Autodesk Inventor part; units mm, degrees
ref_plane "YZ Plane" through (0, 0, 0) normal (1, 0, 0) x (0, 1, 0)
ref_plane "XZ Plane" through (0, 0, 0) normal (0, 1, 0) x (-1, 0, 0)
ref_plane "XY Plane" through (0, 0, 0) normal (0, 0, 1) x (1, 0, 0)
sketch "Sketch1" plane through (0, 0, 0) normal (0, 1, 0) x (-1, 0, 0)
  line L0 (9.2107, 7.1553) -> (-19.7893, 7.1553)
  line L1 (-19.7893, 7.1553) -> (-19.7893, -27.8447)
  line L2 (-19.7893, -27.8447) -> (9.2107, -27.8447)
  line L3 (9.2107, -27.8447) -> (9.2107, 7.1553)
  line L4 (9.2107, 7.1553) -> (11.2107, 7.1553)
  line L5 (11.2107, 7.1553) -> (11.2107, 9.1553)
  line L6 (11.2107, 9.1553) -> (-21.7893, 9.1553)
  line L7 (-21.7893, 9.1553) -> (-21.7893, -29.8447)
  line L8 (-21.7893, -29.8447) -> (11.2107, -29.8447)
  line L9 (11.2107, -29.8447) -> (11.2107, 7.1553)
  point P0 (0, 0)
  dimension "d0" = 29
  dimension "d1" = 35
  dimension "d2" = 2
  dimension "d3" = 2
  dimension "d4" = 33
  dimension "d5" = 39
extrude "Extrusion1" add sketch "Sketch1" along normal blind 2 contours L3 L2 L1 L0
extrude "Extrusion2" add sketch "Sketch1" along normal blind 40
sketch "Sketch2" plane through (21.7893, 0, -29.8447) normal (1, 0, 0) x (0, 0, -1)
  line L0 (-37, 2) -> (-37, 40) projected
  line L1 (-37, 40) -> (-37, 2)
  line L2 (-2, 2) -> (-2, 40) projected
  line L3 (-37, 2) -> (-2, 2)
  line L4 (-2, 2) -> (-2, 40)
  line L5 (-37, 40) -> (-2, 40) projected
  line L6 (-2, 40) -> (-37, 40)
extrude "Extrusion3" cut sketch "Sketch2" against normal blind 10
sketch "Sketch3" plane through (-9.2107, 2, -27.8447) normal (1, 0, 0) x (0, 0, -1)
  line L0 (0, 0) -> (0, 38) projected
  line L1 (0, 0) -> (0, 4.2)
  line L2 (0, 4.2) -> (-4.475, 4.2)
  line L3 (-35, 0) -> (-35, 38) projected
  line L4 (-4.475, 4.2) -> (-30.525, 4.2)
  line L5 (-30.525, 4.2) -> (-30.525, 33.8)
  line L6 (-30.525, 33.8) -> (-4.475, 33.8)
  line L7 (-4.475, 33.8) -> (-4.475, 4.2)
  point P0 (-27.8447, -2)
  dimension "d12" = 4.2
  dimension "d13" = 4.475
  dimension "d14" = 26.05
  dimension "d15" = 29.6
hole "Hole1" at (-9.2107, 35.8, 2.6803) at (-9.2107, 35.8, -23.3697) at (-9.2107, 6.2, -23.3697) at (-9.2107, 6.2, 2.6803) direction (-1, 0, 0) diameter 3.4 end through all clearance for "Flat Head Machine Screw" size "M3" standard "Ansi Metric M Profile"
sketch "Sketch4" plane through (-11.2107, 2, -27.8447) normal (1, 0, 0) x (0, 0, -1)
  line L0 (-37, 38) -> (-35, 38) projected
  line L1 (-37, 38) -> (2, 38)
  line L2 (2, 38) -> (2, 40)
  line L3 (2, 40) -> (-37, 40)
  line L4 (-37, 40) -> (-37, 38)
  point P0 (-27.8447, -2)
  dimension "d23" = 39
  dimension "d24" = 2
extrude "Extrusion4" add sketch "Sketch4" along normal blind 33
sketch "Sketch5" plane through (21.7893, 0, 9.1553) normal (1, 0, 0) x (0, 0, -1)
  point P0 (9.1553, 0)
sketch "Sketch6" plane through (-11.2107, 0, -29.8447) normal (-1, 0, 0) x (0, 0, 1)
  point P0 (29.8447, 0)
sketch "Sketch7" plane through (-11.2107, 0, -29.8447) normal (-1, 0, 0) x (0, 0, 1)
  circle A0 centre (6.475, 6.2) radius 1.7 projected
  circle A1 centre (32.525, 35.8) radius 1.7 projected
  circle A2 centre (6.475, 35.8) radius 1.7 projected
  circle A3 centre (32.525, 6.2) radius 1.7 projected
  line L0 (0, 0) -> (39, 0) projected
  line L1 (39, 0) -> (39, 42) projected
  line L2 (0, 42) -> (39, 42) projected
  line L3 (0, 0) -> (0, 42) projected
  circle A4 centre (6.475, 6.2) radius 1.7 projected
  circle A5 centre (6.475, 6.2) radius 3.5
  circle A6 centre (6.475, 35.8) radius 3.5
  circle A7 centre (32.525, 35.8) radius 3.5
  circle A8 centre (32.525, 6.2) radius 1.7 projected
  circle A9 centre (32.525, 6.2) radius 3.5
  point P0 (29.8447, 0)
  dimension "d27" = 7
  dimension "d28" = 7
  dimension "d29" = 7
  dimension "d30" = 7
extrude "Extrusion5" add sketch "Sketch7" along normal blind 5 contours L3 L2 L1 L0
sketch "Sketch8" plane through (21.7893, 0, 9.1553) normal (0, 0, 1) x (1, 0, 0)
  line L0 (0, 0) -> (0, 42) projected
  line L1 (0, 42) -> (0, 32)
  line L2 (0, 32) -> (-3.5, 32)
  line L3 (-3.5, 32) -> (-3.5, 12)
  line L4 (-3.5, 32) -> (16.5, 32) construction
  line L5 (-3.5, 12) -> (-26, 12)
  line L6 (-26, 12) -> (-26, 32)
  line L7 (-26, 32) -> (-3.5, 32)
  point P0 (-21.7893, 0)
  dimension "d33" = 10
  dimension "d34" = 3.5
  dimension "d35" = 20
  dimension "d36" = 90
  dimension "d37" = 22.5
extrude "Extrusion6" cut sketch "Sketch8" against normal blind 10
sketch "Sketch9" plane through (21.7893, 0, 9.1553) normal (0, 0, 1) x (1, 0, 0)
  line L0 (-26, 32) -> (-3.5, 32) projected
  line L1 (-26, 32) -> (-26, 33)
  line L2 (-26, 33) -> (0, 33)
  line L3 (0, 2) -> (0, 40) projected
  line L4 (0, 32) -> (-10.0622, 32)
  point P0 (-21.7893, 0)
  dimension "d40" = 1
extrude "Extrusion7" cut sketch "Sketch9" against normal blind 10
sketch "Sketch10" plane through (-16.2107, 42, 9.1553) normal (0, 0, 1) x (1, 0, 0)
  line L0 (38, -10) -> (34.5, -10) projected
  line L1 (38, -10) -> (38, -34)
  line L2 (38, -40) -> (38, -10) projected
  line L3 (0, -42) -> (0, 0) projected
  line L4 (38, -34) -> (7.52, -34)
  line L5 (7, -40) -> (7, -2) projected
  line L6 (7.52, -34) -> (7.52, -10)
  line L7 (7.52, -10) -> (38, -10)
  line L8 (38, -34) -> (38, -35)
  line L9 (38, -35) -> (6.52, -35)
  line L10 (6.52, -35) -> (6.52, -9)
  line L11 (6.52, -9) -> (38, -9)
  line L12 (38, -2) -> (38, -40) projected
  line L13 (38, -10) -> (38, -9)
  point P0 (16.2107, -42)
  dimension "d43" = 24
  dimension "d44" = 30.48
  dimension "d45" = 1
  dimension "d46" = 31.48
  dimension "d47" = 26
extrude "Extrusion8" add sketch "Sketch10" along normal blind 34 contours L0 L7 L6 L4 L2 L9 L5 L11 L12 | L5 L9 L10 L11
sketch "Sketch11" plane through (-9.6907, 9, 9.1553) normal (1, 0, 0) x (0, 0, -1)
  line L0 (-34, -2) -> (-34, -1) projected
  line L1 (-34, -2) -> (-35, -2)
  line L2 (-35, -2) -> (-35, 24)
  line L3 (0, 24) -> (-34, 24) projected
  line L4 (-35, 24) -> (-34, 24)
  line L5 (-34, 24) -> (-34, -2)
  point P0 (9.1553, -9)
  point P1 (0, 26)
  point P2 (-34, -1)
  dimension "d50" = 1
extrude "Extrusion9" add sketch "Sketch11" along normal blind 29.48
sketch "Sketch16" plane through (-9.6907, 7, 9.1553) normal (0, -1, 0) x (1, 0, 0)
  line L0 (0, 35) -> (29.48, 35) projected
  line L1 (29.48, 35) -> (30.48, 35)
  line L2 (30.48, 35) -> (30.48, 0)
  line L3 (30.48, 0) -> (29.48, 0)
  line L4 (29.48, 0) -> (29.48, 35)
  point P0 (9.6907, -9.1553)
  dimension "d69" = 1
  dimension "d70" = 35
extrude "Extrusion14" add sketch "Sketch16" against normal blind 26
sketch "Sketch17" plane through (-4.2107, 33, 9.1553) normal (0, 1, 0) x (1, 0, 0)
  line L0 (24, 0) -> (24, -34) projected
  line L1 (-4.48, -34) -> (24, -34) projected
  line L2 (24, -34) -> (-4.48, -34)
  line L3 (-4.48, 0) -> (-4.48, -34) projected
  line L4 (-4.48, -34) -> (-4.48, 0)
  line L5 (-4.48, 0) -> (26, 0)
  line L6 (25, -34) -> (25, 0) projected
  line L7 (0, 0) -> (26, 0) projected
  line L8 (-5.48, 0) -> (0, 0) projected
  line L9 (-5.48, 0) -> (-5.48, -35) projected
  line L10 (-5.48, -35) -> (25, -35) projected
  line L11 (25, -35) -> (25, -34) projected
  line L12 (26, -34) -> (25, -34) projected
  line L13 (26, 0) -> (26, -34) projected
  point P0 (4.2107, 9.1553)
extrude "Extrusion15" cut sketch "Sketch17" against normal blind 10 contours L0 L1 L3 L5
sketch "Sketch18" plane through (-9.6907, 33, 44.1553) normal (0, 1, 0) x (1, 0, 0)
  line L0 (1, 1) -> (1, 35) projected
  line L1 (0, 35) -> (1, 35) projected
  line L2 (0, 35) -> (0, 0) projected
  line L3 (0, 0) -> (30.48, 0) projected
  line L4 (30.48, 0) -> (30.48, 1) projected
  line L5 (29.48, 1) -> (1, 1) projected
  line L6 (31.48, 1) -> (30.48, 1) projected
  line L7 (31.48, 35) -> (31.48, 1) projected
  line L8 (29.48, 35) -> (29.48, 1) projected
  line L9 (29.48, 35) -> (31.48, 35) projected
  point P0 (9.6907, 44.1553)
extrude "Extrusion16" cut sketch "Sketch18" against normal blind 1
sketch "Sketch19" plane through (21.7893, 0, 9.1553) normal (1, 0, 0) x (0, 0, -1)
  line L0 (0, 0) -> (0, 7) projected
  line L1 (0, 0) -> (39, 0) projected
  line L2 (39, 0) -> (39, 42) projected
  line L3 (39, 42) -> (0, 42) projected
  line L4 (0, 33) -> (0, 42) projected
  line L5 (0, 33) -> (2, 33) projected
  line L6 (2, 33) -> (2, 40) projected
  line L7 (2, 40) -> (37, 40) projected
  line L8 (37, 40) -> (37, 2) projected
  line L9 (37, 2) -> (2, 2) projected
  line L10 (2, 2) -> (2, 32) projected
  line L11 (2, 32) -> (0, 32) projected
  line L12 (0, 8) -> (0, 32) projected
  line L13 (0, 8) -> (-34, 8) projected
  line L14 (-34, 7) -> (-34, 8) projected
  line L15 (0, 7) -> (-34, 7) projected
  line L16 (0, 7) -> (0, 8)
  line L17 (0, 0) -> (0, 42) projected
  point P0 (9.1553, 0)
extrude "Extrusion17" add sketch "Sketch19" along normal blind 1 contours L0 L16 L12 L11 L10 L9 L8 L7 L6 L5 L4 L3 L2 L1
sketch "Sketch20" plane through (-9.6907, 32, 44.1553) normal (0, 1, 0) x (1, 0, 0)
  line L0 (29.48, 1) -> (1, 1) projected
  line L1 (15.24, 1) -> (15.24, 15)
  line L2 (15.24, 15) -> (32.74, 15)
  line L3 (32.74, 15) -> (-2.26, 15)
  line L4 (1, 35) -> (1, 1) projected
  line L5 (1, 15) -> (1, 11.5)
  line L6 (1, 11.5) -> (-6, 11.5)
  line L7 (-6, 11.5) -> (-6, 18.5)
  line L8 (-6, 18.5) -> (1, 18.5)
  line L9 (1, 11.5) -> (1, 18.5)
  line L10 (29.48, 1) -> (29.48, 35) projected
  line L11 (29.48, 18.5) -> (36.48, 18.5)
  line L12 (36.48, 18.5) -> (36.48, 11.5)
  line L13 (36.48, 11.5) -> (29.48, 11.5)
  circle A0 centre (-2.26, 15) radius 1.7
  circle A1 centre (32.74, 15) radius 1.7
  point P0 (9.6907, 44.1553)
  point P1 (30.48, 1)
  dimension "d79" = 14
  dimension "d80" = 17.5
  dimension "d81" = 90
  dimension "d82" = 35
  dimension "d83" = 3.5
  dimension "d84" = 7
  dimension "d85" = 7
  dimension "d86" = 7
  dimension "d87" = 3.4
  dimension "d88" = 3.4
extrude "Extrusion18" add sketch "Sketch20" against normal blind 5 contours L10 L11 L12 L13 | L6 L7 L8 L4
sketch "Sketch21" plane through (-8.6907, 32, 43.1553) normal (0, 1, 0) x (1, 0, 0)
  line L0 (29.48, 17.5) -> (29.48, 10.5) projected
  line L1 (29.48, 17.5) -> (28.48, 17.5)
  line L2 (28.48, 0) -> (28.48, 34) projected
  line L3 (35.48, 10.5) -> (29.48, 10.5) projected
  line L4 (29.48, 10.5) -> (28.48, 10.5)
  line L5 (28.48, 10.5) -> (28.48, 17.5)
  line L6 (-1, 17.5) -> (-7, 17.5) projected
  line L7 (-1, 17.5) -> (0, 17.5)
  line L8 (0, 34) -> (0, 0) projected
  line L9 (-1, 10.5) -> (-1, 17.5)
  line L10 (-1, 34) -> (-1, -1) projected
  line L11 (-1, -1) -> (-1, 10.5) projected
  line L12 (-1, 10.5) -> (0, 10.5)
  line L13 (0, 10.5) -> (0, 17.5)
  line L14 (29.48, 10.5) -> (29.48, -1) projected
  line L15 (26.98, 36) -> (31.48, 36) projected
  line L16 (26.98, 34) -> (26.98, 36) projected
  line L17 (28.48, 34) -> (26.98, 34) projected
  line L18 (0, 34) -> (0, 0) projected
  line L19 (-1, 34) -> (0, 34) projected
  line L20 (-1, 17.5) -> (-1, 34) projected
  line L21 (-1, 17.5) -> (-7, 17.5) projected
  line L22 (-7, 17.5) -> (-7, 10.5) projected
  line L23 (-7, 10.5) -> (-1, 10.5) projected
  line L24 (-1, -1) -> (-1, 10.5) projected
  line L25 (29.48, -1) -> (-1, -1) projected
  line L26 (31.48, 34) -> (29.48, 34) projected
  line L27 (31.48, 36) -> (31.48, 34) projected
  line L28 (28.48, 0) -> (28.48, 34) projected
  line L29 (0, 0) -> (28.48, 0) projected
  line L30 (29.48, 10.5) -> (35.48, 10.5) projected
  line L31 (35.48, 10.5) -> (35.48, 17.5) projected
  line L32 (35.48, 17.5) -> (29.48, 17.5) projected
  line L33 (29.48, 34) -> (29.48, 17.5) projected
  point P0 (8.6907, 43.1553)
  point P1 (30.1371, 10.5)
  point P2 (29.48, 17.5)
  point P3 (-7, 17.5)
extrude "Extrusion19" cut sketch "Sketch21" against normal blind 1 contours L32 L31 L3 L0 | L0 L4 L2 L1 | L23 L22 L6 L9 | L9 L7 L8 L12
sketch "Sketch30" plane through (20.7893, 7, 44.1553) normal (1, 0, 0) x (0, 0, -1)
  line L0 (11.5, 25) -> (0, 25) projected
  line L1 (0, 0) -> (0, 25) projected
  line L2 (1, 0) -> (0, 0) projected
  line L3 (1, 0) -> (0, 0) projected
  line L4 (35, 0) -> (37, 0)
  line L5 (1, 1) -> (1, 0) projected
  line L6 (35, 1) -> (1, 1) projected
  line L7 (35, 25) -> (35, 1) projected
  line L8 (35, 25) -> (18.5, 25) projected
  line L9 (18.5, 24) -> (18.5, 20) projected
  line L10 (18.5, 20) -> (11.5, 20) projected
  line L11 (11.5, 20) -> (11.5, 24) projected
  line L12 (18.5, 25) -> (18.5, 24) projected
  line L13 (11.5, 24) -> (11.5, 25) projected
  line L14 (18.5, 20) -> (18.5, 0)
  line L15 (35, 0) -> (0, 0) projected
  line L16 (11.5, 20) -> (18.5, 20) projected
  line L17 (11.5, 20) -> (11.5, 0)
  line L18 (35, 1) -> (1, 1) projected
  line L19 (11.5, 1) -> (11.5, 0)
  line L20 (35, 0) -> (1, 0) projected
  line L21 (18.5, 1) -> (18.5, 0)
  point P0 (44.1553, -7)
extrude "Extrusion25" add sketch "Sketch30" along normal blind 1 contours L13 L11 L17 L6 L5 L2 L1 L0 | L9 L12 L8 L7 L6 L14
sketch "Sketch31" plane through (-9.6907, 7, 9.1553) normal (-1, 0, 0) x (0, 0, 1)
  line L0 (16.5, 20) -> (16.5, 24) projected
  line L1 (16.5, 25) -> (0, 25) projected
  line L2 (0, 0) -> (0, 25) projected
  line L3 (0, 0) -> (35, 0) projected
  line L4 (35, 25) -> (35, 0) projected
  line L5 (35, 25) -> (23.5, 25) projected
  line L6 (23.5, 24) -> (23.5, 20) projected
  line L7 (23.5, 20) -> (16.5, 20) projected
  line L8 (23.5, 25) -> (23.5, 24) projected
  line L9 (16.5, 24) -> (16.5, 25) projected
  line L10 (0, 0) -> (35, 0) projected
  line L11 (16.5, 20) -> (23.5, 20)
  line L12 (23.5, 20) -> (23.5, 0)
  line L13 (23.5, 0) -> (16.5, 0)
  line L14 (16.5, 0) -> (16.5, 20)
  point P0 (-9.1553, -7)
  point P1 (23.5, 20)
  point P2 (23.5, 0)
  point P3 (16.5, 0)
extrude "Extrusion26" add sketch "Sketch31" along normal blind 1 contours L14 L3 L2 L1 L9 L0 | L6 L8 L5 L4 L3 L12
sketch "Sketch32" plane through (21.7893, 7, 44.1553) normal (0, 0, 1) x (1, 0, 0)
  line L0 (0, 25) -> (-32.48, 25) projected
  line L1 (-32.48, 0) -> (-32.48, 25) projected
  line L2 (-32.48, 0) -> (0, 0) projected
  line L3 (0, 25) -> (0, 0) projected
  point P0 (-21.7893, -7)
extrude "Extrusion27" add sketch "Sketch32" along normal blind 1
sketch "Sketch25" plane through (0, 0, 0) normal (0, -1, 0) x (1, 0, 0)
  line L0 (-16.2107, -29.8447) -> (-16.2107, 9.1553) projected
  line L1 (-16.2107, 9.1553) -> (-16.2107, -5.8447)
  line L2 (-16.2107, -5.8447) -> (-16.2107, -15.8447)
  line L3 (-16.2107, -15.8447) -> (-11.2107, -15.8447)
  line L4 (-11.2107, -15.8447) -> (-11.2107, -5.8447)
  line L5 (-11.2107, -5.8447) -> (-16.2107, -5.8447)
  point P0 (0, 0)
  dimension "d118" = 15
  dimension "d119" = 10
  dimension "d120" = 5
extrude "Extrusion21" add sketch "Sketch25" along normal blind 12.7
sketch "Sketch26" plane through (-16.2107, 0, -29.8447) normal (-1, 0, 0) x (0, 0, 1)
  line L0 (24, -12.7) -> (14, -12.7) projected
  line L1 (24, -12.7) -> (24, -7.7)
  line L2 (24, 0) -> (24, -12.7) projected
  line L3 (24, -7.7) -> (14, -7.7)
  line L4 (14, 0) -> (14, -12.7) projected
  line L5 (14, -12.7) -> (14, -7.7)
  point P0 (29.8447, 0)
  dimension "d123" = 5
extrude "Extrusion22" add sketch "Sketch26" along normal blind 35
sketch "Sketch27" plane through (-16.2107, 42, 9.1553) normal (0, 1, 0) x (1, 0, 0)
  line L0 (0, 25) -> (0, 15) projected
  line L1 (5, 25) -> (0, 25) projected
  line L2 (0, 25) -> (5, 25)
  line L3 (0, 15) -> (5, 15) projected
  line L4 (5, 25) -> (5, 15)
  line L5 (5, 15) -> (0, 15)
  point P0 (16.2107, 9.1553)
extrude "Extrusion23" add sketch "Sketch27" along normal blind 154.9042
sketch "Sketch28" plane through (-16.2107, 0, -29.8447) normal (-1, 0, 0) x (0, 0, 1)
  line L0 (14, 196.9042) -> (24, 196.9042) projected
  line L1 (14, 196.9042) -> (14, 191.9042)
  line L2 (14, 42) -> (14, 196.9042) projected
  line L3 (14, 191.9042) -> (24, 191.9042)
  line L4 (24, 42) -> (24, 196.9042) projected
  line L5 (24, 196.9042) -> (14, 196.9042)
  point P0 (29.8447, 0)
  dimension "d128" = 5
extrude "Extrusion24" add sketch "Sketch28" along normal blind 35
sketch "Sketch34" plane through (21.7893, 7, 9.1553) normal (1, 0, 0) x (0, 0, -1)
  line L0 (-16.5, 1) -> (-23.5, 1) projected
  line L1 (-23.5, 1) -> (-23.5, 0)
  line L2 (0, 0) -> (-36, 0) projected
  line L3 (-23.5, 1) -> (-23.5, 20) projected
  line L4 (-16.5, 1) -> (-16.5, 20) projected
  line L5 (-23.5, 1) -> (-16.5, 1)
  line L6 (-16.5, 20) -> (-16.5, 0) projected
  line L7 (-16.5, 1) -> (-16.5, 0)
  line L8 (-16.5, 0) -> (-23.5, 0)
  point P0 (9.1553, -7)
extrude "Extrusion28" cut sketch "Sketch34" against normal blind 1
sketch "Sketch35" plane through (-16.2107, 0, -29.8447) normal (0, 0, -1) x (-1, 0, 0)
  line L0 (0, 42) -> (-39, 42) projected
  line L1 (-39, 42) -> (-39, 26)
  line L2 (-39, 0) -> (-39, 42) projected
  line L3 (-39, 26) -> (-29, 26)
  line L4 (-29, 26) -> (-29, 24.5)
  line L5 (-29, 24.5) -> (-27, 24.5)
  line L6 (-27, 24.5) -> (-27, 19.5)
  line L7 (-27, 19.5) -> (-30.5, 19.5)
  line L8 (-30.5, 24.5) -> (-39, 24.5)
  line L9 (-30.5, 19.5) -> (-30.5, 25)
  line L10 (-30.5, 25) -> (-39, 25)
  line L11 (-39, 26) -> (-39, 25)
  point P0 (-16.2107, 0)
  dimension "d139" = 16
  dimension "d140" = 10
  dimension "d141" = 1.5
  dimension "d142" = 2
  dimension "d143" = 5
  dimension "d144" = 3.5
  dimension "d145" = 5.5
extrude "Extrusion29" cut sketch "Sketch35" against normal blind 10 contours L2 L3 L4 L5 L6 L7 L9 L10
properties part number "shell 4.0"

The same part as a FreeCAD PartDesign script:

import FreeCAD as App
import Part
import Sketcher


def add_polygon(sketch, points):
    """Adds a closed chain of lines whose ends are joined by coincident constraints."""
    first, n = sketch.GeometryCount, len(points)
    for a, b in zip(points, points[1:] + points[:1]):
        sketch.addGeometry(Part.LineSegment(App.Vector(*a, 0), App.Vector(*b, 0)), False)
    for i in range(n):
        sketch.addConstraint(Sketcher.Constraint("Coincident", first + i, 2, first + (i + 1) % n, 1))

doc = App.newDocument("Part")
body = doc.addObject("PartDesign::Body", "Body")

# Sketch on XZ plane
sketch1 = doc.addObject("Sketcher::SketchObject", "Sketch")
body.addObject(sketch1)
sketch1.AttachmentSupport = (doc.XZ_Plane, [""])
sketch1.MapMode = "FlatFace"
add_polygon(sketch1, [(-9, -28), (-9, 7), (20, 7), (20, -28)])  # lines 0-3
sketch1.addConstraint(Sketcher.Constraint("Vertical", 0))
sketch1.addConstraint(Sketcher.Constraint("Horizontal", 1))
sketch1.addConstraint(Sketcher.Constraint("Vertical", 2))
sketch1.addConstraint(Sketcher.Constraint("Horizontal", 3))
sketch1.addConstraint(Sketcher.Constraint("DistanceX", 1, 1, 1, 2, 29.0))
sketch1.addConstraint(Sketcher.Constraint("DistanceY", 0, 1, 0, 2, 35.0))
sketch1.addConstraint(Sketcher.Constraint("DistanceX", 0, 2, -1, 1, 9.2107))
sketch1.addConstraint(Sketcher.Constraint("DistanceY", -1, 1, 0, 2, 7.1553))
pad1 = doc.addObject("PartDesign::Pad", "Pad")
body.addObject(pad1)
pad1.Profile = sketch1
pad1.Length = 2
pad1.Reversed = True

# Sketch on XZ plane
sketch2 = doc.addObject("Sketcher::SketchObject", "Sketch001")
body.addObject(sketch2)
sketch2.AttachmentSupport = (doc.XZ_Plane, [""])
sketch2.MapMode = "FlatFace"
add_polygon(sketch2, [(-11.2, -29.8), (-11.2, 7.2), (-11.2, 9.2), (21.8, 9.2), (21.8, -29.8)])  # lines 0-4
add_polygon(sketch2, [(19.8, 7.2), (-9.2, 7.2), (-9.2, -27.8), (19.8, -27.8)])  # lines 5-8
sketch2.addConstraint(Sketcher.Constraint("Vertical", 0))
sketch2.addConstraint(Sketcher.Constraint("Vertical", 1))
sketch2.addConstraint(Sketcher.Constraint("Horizontal", 2))
sketch2.addConstraint(Sketcher.Constraint("Vertical", 3))
sketch2.addConstraint(Sketcher.Constraint("Horizontal", 4))
sketch2.addConstraint(Sketcher.Constraint("Horizontal", 5))
sketch2.addConstraint(Sketcher.Constraint("Vertical", 6))
sketch2.addConstraint(Sketcher.Constraint("Horizontal", 7))
sketch2.addConstraint(Sketcher.Constraint("Vertical", 8))
sketch2.addConstraint(Sketcher.Constraint("Horizontal", 0, 2, 5, 2))
sketch2.addConstraint(Sketcher.Constraint("DistanceX", 2, 1, 2, 2, 33.0))
sketch2.addConstraint(Sketcher.Constraint("DistanceX", 5, 2, 5, 1, 29.0))
sketch2.addConstraint(Sketcher.Constraint("DistanceY", 1, 1, 1, 2, 2.0))
sketch2.addConstraint(Sketcher.Constraint("DistanceY", 3, 2, 3, 1, 39.0))
sketch2.addConstraint(Sketcher.Constraint("DistanceY", 6, 2, 6, 1, 35.0))
sketch2.addConstraint(Sketcher.Constraint("DistanceX", 0, 2, 5, 2, 2.0))
sketch2.addConstraint(Sketcher.Constraint("DistanceX", 0, 2, -1, 1, 11.2107))
sketch2.addConstraint(Sketcher.Constraint("DistanceY", -1, 1, 0, 2, 7.1553))
pad2 = doc.addObject("PartDesign::Pad", "Pad001")
body.addObject(pad2)
pad2.Profile = sketch2
pad2.Length = 40
pad2.Reversed = True

# Sketch on YZ plane
sketch3 = doc.addObject("Sketcher::SketchObject", "Sketch002")
body.addObject(sketch3)
sketch3.AttachmentSupport = (doc.YZ_Plane, [""])
sketch3.MapMode = "FlatFace"
sketch3.AttachmentOffset = App.Placement(App.Vector(0, 0, 21.7893), App.Rotation())
add_polygon(sketch3, [(40, 7), (2, 7), (2, -28), (40, -28)])  # lines 0-3
sketch3.addConstraint(Sketcher.Constraint("Horizontal", 0))
sketch3.addConstraint(Sketcher.Constraint("Vertical", 1))
sketch3.addConstraint(Sketcher.Constraint("Horizontal", 2))
sketch3.addConstraint(Sketcher.Constraint("Vertical", 3))
sketch3.addConstraint(Sketcher.Constraint("DistanceX", 0, 2, 0, 1, 38.0))
sketch3.addConstraint(Sketcher.Constraint("DistanceY", 1, 2, 1, 1, 35.0))
sketch3.addConstraint(Sketcher.Constraint("DistanceX", -1, 1, 0, 2, 2.0))
sketch3.addConstraint(Sketcher.Constraint("DistanceY", -1, 1, 0, 2, 7.1553))
pocket1 = doc.addObject("PartDesign::Pocket", "Pocket")
body.addObject(pocket1)
pocket1.Profile = sketch3
pocket1.Length = 10

# Sketch on YZ plane
sketch4 = doc.addObject("Sketcher::SketchObject", "Sketch003")
body.addObject(sketch4)
sketch4.AttachmentSupport = (doc.YZ_Plane, [""])
sketch4.MapMode = "FlatFace"
sketch4.AttachmentOffset = App.Placement(App.Vector(0, 0, -9.2107), App.Rotation())
sketch4.addGeometry(Part.Circle(App.Vector(35.8, 2.7, 0), App.Vector(0, 0, 1), 1.7), False)
sketch4.addGeometry(Part.Circle(App.Vector(35.8, -23.4, 0), App.Vector(0, 0, 1), 1.7), False)
sketch4.addGeometry(Part.Circle(App.Vector(6.2, -23.4, 0), App.Vector(0, 0, 1), 1.7), False)
sketch4.addGeometry(Part.Circle(App.Vector(6.2, 2.7, 0), App.Vector(0, 0, 1), 1.7), False)
sketch4.addConstraint(Sketcher.Constraint("Equal", 0, 1))
sketch4.addConstraint(Sketcher.Constraint("Equal", 1, 2))
sketch4.addConstraint(Sketcher.Constraint("Equal", 2, 3))
sketch4.addConstraint(Sketcher.Constraint("Horizontal", 1, 3, 2, 3))
sketch4.addConstraint(Sketcher.Constraint("Horizontal", 0, 3, 3, 3))
sketch4.addConstraint(Sketcher.Constraint("Vertical", 0, 3, 1, 3))
sketch4.addConstraint(Sketcher.Constraint("Vertical", 2, 3, 3, 3))
sketch4.addConstraint(Sketcher.Constraint("Diameter", 0, 3.4))
sketch4.addConstraint(Sketcher.Constraint("DistanceX", -1, 1, 0, 3, 35.8))
sketch4.addConstraint(Sketcher.Constraint("DistanceX", -1, 1, 2, 3, 6.2))
sketch4.addConstraint(Sketcher.Constraint("DistanceY", 1, 3, 0, 3, 26.05))
sketch4.addConstraint(Sketcher.Constraint("DistanceY", -1, 1, 0, 3, 2.6803))
doc.recompute()
hole = doc.addObject("PartDesign::Hole", "Hole")
body.addObject(hole)
hole.Profile = sketch4
hole.ThreadType = "None"
hole.Diameter = 3.4
hole.DepthType = "ThroughAll"

# Sketch on YZ plane
sketch5 = doc.addObject("Sketcher::SketchObject", "Sketch004")
body.addObject(sketch5)
sketch5.AttachmentSupport = (doc.YZ_Plane, [""])
sketch5.MapMode = "FlatFace"
sketch5.AttachmentOffset = App.Placement(App.Vector(0, 0, -11.2107), App.Rotation())
add_polygon(sketch5, [(42, 9.2), (40, 9.2), (40, -29.8), (42, -29.8)])  # lines 0-3
sketch5.addConstraint(Sketcher.Constraint("Horizontal", 0))
sketch5.addConstraint(Sketcher.Constraint("Vertical", 1))
sketch5.addConstraint(Sketcher.Constraint("Horizontal", 2))
sketch5.addConstraint(Sketcher.Constraint("Vertical", 3))
sketch5.addConstraint(Sketcher.Constraint("DistanceX", 0, 2, 0, 1, 2.0))
sketch5.addConstraint(Sketcher.Constraint("DistanceY", 1, 2, 1, 1, 39.0))
sketch5.addConstraint(Sketcher.Constraint("DistanceX", -1, 1, 0, 2, 40.0))
sketch5.addConstraint(Sketcher.Constraint("DistanceY", -1, 1, 0, 2, 9.1553))
pad3 = doc.addObject("PartDesign::Pad", "Pad002")
body.addObject(pad3)
pad3.Profile = sketch5
pad3.Length = 33

# Sketch on YZ plane
sketch6 = doc.addObject("Sketcher::SketchObject", "Sketch005")
body.addObject(sketch6)
sketch6.AttachmentSupport = (doc.YZ_Plane, [""])
sketch6.MapMode = "FlatFace"
sketch6.AttachmentOffset = App.Placement(App.Vector(0, 0, -11.2107), App.Rotation())
add_polygon(sketch6, [(42, -29.8), (0, -29.8), (0, 9.2), (42, 9.2)])  # lines 0-3
sketch6.addGeometry(Part.Circle(App.Vector(6.2, -23.4, 0), App.Vector(0, 0, 1), 3.5), False)  # 4
sketch6.addGeometry(Part.Circle(App.Vector(6.2, 2.7, 0), App.Vector(0, 0, 1), 3.5), False)  # 5
sketch6.addGeometry(Part.Circle(App.Vector(35.8, -23.4, 0), App.Vector(0, 0, 1), 3.5), False)  # 6
sketch6.addGeometry(Part.Circle(App.Vector(35.8, 2.7, 0), App.Vector(0, 0, 1), 3.5), False)  # 7
sketch6.addConstraint(Sketcher.Constraint("Horizontal", 0))
sketch6.addConstraint(Sketcher.Constraint("Vertical", 1))
sketch6.addConstraint(Sketcher.Constraint("Horizontal", 2))
sketch6.addConstraint(Sketcher.Constraint("Vertical", 3))
sketch6.addConstraint(Sketcher.Constraint("Equal", 4, 5))
sketch6.addConstraint(Sketcher.Constraint("Equal", 5, 6))
sketch6.addConstraint(Sketcher.Constraint("Equal", 6, 7))
sketch6.addConstraint(Sketcher.Constraint("PointOnObject", 0, 2, -2))
sketch6.addConstraint(Sketcher.Constraint("Horizontal", 4, 3, 6, 3))
sketch6.addConstraint(Sketcher.Constraint("Horizontal", 5, 3, 7, 3))
sketch6.addConstraint(Sketcher.Constraint("Vertical", 4, 3, 5, 3))
sketch6.addConstraint(Sketcher.Constraint("Vertical", 6, 3, 7, 3))
sketch6.addConstraint(Sketcher.Constraint("Diameter", 4, 7.0))
sketch6.addConstraint(Sketcher.Constraint("DistanceX", 0, 2, 0, 1, 42.0))
sketch6.addConstraint(Sketcher.Constraint("DistanceY", 1, 1, 1, 2, 39.0))
sketch6.addConstraint(Sketcher.Constraint("DistanceX", -1, 1, 4, 3, 6.2))
sketch6.addConstraint(Sketcher.Constraint("DistanceX", -1, 1, 6, 3, 35.8))
sketch6.addConstraint(Sketcher.Constraint("DistanceY", 4, 3, 5, 3, 26.05))
sketch6.addConstraint(Sketcher.Constraint("DistanceY", 0, 2, 4, 3, 6.475))
sketch6.addConstraint(Sketcher.Constraint("DistanceY", 4, 3, -1, 1, 23.3697))
pad4 = doc.addObject("PartDesign::Pad", "Pad003")
body.addObject(pad4)
pad4.Profile = sketch6
pad4.Length = 5
pad4.Reversed = True

# Sketch on XY plane
sketch7 = doc.addObject("Sketcher::SketchObject", "Sketch006")
body.addObject(sketch7)
sketch7.AttachmentSupport = (doc.XY_Plane, [""])
sketch7.MapMode = "FlatFace"
sketch7.AttachmentOffset = App.Placement(App.Vector(0, 0, 9.1553), App.Rotation())
add_polygon(sketch7, [(18, 12), (18, 32), (-4, 32), (-4, 12)])  # lines 0-3
sketch7.addConstraint(Sketcher.Constraint("Vertical", 0))
sketch7.addConstraint(Sketcher.Constraint("Horizontal", 1))
sketch7.addConstraint(Sketcher.Constraint("Vertical", 2))
sketch7.addConstraint(Sketcher.Constraint("Horizontal", 3))
sketch7.addConstraint(Sketcher.Constraint("DistanceY", 0, 1, 0, 2, 20.0))
sketch7.addConstraint(Sketcher.Constraint("DistanceX", 1, 2, 1, 1, 22.5))
sketch7.addConstraint(Sketcher.Constraint("DistanceY", -1, 1, 0, 2, 32.0))
sketch7.addConstraint(Sketcher.Constraint("DistanceX", -1, 1, 0, 2, 18.2893))
pocket2 = doc.addObject("PartDesign::Pocket", "Pocket001")
body.addObject(pocket2)
pocket2.Profile = sketch7
pocket2.Length = 10

# Sketch on XY plane
sketch8 = doc.addObject("Sketcher::SketchObject", "Sketch007")
body.addObject(sketch8)
sketch8.AttachmentSupport = (doc.XY_Plane, [""])
sketch8.MapMode = "FlatFace"
sketch8.AttachmentOffset = App.Placement(App.Vector(0, 0, 9.1553), App.Rotation())
add_polygon(sketch8, [(-4.2, 33), (-4.2, 32), (21.8, 32), (21.8, 33)])  # lines 0-3
sketch8.addConstraint(Sketcher.Constraint("Vertical", 0))
sketch8.addConstraint(Sketcher.Constraint("Horizontal", 1))
sketch8.addConstraint(Sketcher.Constraint("Vertical", 2))
sketch8.addConstraint(Sketcher.Constraint("Horizontal", 3))
sketch8.addConstraint(Sketcher.Constraint("DistanceY", 0, 2, 0, 1, 1.0))
sketch8.addConstraint(Sketcher.Constraint("DistanceX", 1, 1, 1, 2, 26.0))
sketch8.addConstraint(Sketcher.Constraint("DistanceY", -1, 1, 0, 2, 32.0))
sketch8.addConstraint(Sketcher.Constraint("DistanceX", 0, 2, -1, 1, 4.2107))
pocket3 = doc.addObject("PartDesign::Pocket", "Pocket002")
body.addObject(pocket3)
pocket3.Profile = sketch8
pocket3.Length = 10

# Sketch on XY plane
sketch9 = doc.addObject("Sketcher::SketchObject", "Sketch008")
body.addObject(sketch9)
sketch9.AttachmentSupport = (doc.XY_Plane, [""])
sketch9.MapMode = "FlatFace"
sketch9.AttachmentOffset = App.Placement(App.Vector(0, 0, 9.1553), App.Rotation())
add_polygon(sketch9, [(21.8, 32), (21.8, 33), (-9.7, 33), (-9.7, 7), (21.8, 7), (21.8, 8), (-8.7, 8), (-8.7, 32)])  # lines 0-7
sketch9.addConstraint(Sketcher.Constraint("Vertical", 0))
sketch9.addConstraint(Sketcher.Constraint("Horizontal", 1))
sketch9.addConstraint(Sketcher.Constraint("Vertical", 2))
sketch9.addConstraint(Sketcher.Constraint("Horizontal", 3))
sketch9.addConstraint(Sketcher.Constraint("Vertical", 4))
sketch9.addConstraint(Sketcher.Constraint("Horizontal", 5))
sketch9.addConstraint(Sketcher.Constraint("Vertical", 6))
sketch9.addConstraint(Sketcher.Constraint("Horizontal", 7))
sketch9.addConstraint(Sketcher.Constraint("Vertical", 0, 2, 3, 2))
sketch9.addConstraint(Sketcher.Constraint("Equal", 0, 4))
sketch9.addConstraint(Sketcher.Constraint("DistanceY", 0, 1, 0, 2, 1.0))
sketch9.addConstraint(Sketcher.Constraint("DistanceY", 2, 2, 2, 1, 26.0))
sketch9.addConstraint(Sketcher.Constraint("DistanceX", 2, 2, 5, 2, 1.0))
sketch9.addConstraint(Sketcher.Constraint("DistanceX", 1, 2, 1, 1, 31.48))
sketch9.addConstraint(Sketcher.Constraint("DistanceY", -1, 1, 0, 2, 33.0))
sketch9.addConstraint(Sketcher.Constraint("DistanceX", -1, 1, 0, 2, 21.7893))
pad5 = doc.addObject("PartDesign::Pad", "Pad004")
body.addObject(pad5)
pad5.Profile = sketch9
pad5.Length = 34

# Sketch on YZ plane
sketch10 = doc.addObject("Sketcher::SketchObject", "Sketch009")
body.addObject(sketch10)
sketch10.AttachmentSupport = (doc.YZ_Plane, [""])
sketch10.MapMode = "FlatFace"
sketch10.AttachmentOffset = App.Placement(App.Vector(0, 0, -9.6907), App.Rotation())
add_polygon(sketch10, [(7, 44.2), (7, 43.2), (33, 43.2), (33, 44.2)])  # lines 0-3
sketch10.addConstraint(Sketcher.Constraint("Vertical", 0))
sketch10.addConstraint(Sketcher.Constraint("Horizontal", 1))
sketch10.addConstraint(Sketcher.Constraint("Vertical", 2))
sketch10.addConstraint(Sketcher.Constraint("Horizontal", 3))
sketch10.addConstraint(Sketcher.Constraint("DistanceY", 0, 2, 0, 1, 1.0))
sketch10.addConstraint(Sketcher.Constraint("DistanceX", 1, 1, 1, 2, 26.0))
sketch10.addConstraint(Sketcher.Constraint("DistanceX", -1, 1, 0, 2, 7.0))
sketch10.addConstraint(Sketcher.Constraint("DistanceY", -1, 1, 0, 2, 43.1553))
pad6 = doc.addObject("PartDesign::Pad", "Pad005")
body.addObject(pad6)
pad6.Profile = sketch10
pad6.Length = 29.48

# Sketch on XZ plane
sketch11 = doc.addObject("Sketcher::SketchObject", "Sketch010")
body.addObject(sketch11)
sketch11.AttachmentSupport = (doc.XZ_Plane, [""])
sketch11.MapMode = "FlatFace"
sketch11.AttachmentOffset = App.Placement(App.Vector(0, 0, -7), App.Rotation())
add_polygon(sketch11, [(20.8, 44.2), (19.8, 44.2), (19.8, 9.2), (20.8, 9.2)])  # lines 0-3
sketch11.addConstraint(Sketcher.Constraint("Horizontal", 0))
sketch11.addConstraint(Sketcher.Constraint("Vertical", 1))
sketch11.addConstraint(Sketcher.Constraint("Horizontal", 2))
sketch11.addConstraint(Sketcher.Constraint("Vertical", 3))
sketch11.addConstraint(Sketcher.Constraint("DistanceX", 0, 2, 0, 1, 1.0))
sketch11.addConstraint(Sketcher.Constraint("DistanceY", 1, 2, 1, 1, 35.0))
sketch11.addConstraint(Sketcher.Constraint("DistanceX", -1, 1, 0, 2, 19.7893))
sketch11.addConstraint(Sketcher.Constraint("DistanceY", -1, 1, 0, 2, 44.1553))
pad7 = doc.addObject("PartDesign::Pad", "Pad006")
body.addObject(pad7)
pad7.Profile = sketch11
pad7.Length = 26
pad7.Reversed = True

# Sketch on XZ plane
sketch12 = doc.addObject("Sketcher::SketchObject", "Sketch011")
body.addObject(sketch12)
sketch12.AttachmentSupport = (doc.XZ_Plane, [""])
sketch12.MapMode = "FlatFace"
sketch12.AttachmentOffset = App.Placement(App.Vector(0, 0, -33), App.Rotation())
add_polygon(sketch12, [(20, 43), (20, 9), (-9, 9), (-9, 43)])  # lines 0-3
sketch12.addConstraint(Sketcher.Constraint("Vertical", 0))
sketch12.addConstraint(Sketcher.Constraint("Horizontal", 1))
sketch12.addConstraint(Sketcher.Constraint("Vertical", 2))
sketch12.addConstraint(Sketcher.Constraint("Horizontal", 3))
sketch12.addConstraint(Sketcher.Constraint("DistanceY", 0, 2, 0, 1, 34.0))
sketch12.addConstraint(Sketcher.Constraint("DistanceX", 1, 2, 1, 1, 28.48))
sketch12.addConstraint(Sketcher.Constraint("DistanceX", -1, 1, 0, 2, 19.7893))
sketch12.addConstraint(Sketcher.Constraint("DistanceY", -1, 1, 0, 2, 9.1553))
pocket4 = doc.addObject("PartDesign::Pocket", "Pocket003")
body.addObject(pocket4)
pocket4.Profile = sketch12
pocket4.Length = 10
pocket4.Reversed = True

# Sketch on XZ plane
sketch13 = doc.addObject("Sketcher::SketchObject", "Sketch012")
body.addObject(sketch13)
sketch13.AttachmentSupport = (doc.XZ_Plane, [""])
sketch13.MapMode = "FlatFace"
sketch13.AttachmentOffset = App.Placement(App.Vector(0, 0, -33), App.Rotation())
add_polygon(sketch13, [(19.8, 43.2), (-8.7, 43.2), (-8.7, 9.2), (-9.7, 9.2), (-9.7, 44.2), (20.8, 44.2), (20.8, 43.2), (21.8, 43.2), (21.8, 9.2), (19.8, 9.2)])  # lines 0-9
sketch13.addConstraint(Sketcher.Constraint("Horizontal", 0))
sketch13.addConstraint(Sketcher.Constraint("Vertical", 1))
sketch13.addConstraint(Sketcher.Constraint("Horizontal", 2))
sketch13.addConstraint(Sketcher.Constraint("Vertical", 3))
sketch13.addConstraint(Sketcher.Constraint("Horizontal", 4))
sketch13.addConstraint(Sketcher.Constraint("Vertical", 5))
sketch13.addConstraint(Sketcher.Constraint("Horizontal", 6))
sketch13.addConstraint(Sketcher.Constraint("Vertical", 7))
sketch13.addConstraint(Sketcher.Constraint("Horizontal", 8))
sketch13.addConstraint(Sketcher.Constraint("Vertical", 9))
sketch13.addConstraint(Sketcher.Constraint("Horizontal", 0, 2, 5, 2))
sketch13.addConstraint(Sketcher.Constraint("Horizontal", 2, 2, 7, 2))
sketch13.addConstraint(Sketcher.Constraint("Equal", 2, 6))
sketch13.addConstraint(Sketcher.Constraint("Equal", 6, 5))
sketch13.addConstraint(Sketcher.Constraint("DistanceX", 2, 2, 2, 1, 1.0))
sketch13.addConstraint(Sketcher.Constraint("DistanceX", 8, 2, 8, 1, 2.0))
sketch13.addConstraint(Sketcher.Constraint("DistanceY", 1, 2, 1, 1, 34.0))
sketch13.addConstraint(Sketcher.Constraint("DistanceX", 0, 2, 0, 1, 28.48))
sketch13.addConstraint(Sketcher.Constraint("DistanceX", 0, 2, -1, 1, 8.6907))
sketch13.addConstraint(Sketcher.Constraint("DistanceY", -1, 1, 0, 2, 43.1553))
pocket5 = doc.addObject("PartDesign::Pocket", "Pocket004")
body.addObject(pocket5)
pocket5.Profile = sketch13
pocket5.Length = 1
pocket5.Reversed = True

# Sketch on YZ plane
sketch14 = doc.addObject("Sketcher::SketchObject", "Sketch013")
body.addObject(sketch14)
sketch14.AttachmentSupport = (doc.YZ_Plane, [""])
sketch14.MapMode = "FlatFace"
sketch14.AttachmentOffset = App.Placement(App.Vector(0, 0, 21.7893), App.Rotation())
add_polygon(sketch14, [(32, 9.2), (0, 9.2), (0, -29.8), (42, -29.8), (42, 9.2), (33, 9.2), (33, 7.2), (40, 7.2), (40, -27.8), (2, -27.8), (2, 7.2), (32, 7.2)])  # lines 0-11
sketch14.addConstraint(Sketcher.Constraint("Horizontal", 0))
sketch14.addConstraint(Sketcher.Constraint("Vertical", 1))
sketch14.addConstraint(Sketcher.Constraint("Horizontal", 2))
sketch14.addConstraint(Sketcher.Constraint("Vertical", 3))
sketch14.addConstraint(Sketcher.Constraint("Horizontal", 4))
sketch14.addConstraint(Sketcher.Constraint("Vertical", 5))
sketch14.addConstraint(Sketcher.Constraint("Horizontal", 6))
sketch14.addConstraint(Sketcher.Constraint("Vertical", 7))
sketch14.addConstraint(Sketcher.Constraint("Horizontal", 8))
sketch14.addConstraint(Sketcher.Constraint("Vertical", 9))
sketch14.addConstraint(Sketcher.Constraint("Horizontal", 10))
sketch14.addConstraint(Sketcher.Constraint("Vertical", 11))
sketch14.addConstraint(Sketcher.Constraint("PointOnObject", 0, 2, -2))
sketch14.addConstraint(Sketcher.Constraint("Horizontal", 0, 2, 3, 2))
sketch14.addConstraint(Sketcher.Constraint("Horizontal", 6, 2, 9, 2))
sketch14.addConstraint(Sketcher.Constraint("DistanceX", 0, 2, 0, 1, 32.0))
sketch14.addConstraint(Sketcher.Constraint("DistanceX", 2, 1, 2, 2, 42.0))
sketch14.addConstraint(Sketcher.Constraint("DistanceX", 4, 2, 4, 1, 9.0))
sketch14.addConstraint(Sketcher.Constraint("DistanceX", 6, 1, 6, 2, 7.0))
sketch14.addConstraint(Sketcher.Constraint("DistanceX", 8, 2, 8, 1, 38.0))
sketch14.addConstraint(Sketcher.Constraint("DistanceY", 1, 2, 1, 1, 39.0))
sketch14.addConstraint(Sketcher.Constraint("DistanceY", 5, 2, 5, 1, 2.0))
sketch14.addConstraint(Sketcher.Constraint("DistanceY", 7, 2, 7, 1, 35.0))
sketch14.addConstraint(Sketcher.Constraint("DistanceY", -1, 1, 0, 2, 9.1553))
pad8 = doc.addObject("PartDesign::Pad", "Pad007")
body.addObject(pad8)
pad8.Profile = sketch14
pad8.Length = 1

# Sketch on XZ plane
sketch15 = doc.addObject("Sketcher::SketchObject", "Sketch014")
body.addObject(sketch15)
sketch15.AttachmentSupport = (doc.XZ_Plane, [""])
sketch15.MapMode = "FlatFace"
sketch15.AttachmentOffset = App.Placement(App.Vector(0, 0, -32), App.Rotation())
add_polygon(sketch15, [(19.8, 29.2), (19.8, 32.7), (26.8, 32.7), (26.8, 25.7), (19.8, 25.7)])  # lines 0-4
sketch15.addGeometry(Part.Circle(App.Vector(23, 29.2, 0), App.Vector(0, 0, 1), 1.7), False)  # 5
add_polygon(sketch15, [(-15.7, 32.7), (-8.7, 32.7), (-8.7, 29.2), (-8.7, 25.7), (-15.7, 25.7)])  # lines 6-10
sketch15.addGeometry(Part.Circle(App.Vector(-12, 29.2, 0), App.Vector(0, 0, 1), 1.7), False)  # 11
sketch15.addConstraint(Sketcher.Constraint("Vertical", 0))
sketch15.addConstraint(Sketcher.Constraint("Horizontal", 1))
sketch15.addConstraint(Sketcher.Constraint("Vertical", 2))
sketch15.addConstraint(Sketcher.Constraint("Horizontal", 3))
sketch15.addConstraint(Sketcher.Constraint("Vertical", 4))
sketch15.addConstraint(Sketcher.Constraint("Horizontal", 6))
sketch15.addConstraint(Sketcher.Constraint("Vertical", 7))
sketch15.addConstraint(Sketcher.Constraint("Vertical", 8))
sketch15.addConstraint(Sketcher.Constraint("Horizontal", 9))
sketch15.addConstraint(Sketcher.Constraint("Vertical", 10))
sketch15.addConstraint(Sketcher.Constraint("Equal", 5, 11))
sketch15.addConstraint(Sketcher.Constraint("Horizontal", 5, 3, 11, 3))
sketch15.addConstraint(Sketcher.Constraint("Horizontal", 11, 3, 4, 2))
sketch15.addConstraint(Sketcher.Constraint("Horizontal", 1, 2, 6, 2))
sketch15.addConstraint(Sketcher.Constraint("Horizontal", 4, 2, 7, 2))
sketch15.addConstraint(Sketcher.Constraint("Horizontal", 3, 2, 8, 2))
sketch15.addConstraint(Sketcher.Constraint("Equal", 3, 6))
sketch15.addConstraint(Sketcher.Constraint("Equal", 9, 2))
sketch15.addConstraint(Sketcher.Constraint("Equal", 0, 4))
sketch15.addConstraint(Sketcher.Constraint("Diameter", 5, 3.4))
sketch15.addConstraint(Sketcher.Constraint("DistanceX", 1, 1, 1, 2, 7.0))
sketch15.addConstraint(Sketcher.Constraint("DistanceX", 11, 3, 5, 3, 35.0))
sketch15.addConstraint(Sketcher.Constraint("DistanceX", 0, 2, 5, 3, 3.26))
sketch15.addConstraint(Sketcher.Constraint("DistanceX", 11, 3, 6, 2, 3.26))
sketch15.addConstraint(Sketcher.Constraint("DistanceX", -1, 1, 5, 3, 23.0493))
sketch15.addConstraint(Sketcher.Constraint("DistanceY", -1, 1, 5, 3, 29.1553))
pad9 = doc.addObject("PartDesign::Pad", "Pad008")
body.addObject(pad9)
pad9.Profile = sketch15
pad9.Length = 5

# Sketch on XZ plane
sketch16 = doc.addObject("Sketcher::SketchObject", "Sketch015")
body.addObject(sketch16)
sketch16.AttachmentSupport = (doc.XZ_Plane, [""])
sketch16.MapMode = "FlatFace"
sketch16.AttachmentOffset = App.Placement(App.Vector(0, 0, -32), App.Rotation())
add_polygon(sketch16, [(27, 26), (20, 26), (20, 33), (27, 33)])  # lines 0-3
add_polygon(sketch16, [(-16, 33), (-9, 33), (-9, 26), (-16, 26)])  # lines 4-7
sketch16.addConstraint(Sketcher.Constraint("Horizontal", 0))
sketch16.addConstraint(Sketcher.Constraint("Vertical", 1))
sketch16.addConstraint(Sketcher.Constraint("Horizontal", 2))
sketch16.addConstraint(Sketcher.Constraint("Vertical", 3))
sketch16.addConstraint(Sketcher.Constraint("Horizontal", 4))
sketch16.addConstraint(Sketcher.Constraint("Vertical", 5))
sketch16.addConstraint(Sketcher.Constraint("Horizontal", 6))
sketch16.addConstraint(Sketcher.Constraint("Vertical", 7))
sketch16.addConstraint(Sketcher.Constraint("Horizontal", 2, 2, 4, 2))
sketch16.addConstraint(Sketcher.Constraint("Horizontal", 3, 2, 5, 2))
sketch16.addConstraint(Sketcher.Constraint("Equal", 2, 4))
sketch16.addConstraint(Sketcher.Constraint("Equal", 6, 1))
sketch16.addConstraint(Sketcher.Constraint("DistanceX", 0, 2, 0, 1, 7.0))
sketch16.addConstraint(Sketcher.Constraint("DistanceX", 4, 2, 1, 2, 28.48))
sketch16.addConstraint(Sketcher.Constraint("DistanceX", -1, 1, 0, 2, 19.7893))
sketch16.addConstraint(Sketcher.Constraint("DistanceY", -1, 1, 0, 2, 25.6553))
pocket6 = doc.addObject("PartDesign::Pocket", "Pocket005")
body.addObject(pocket6)
pocket6.Profile = sketch16
pocket6.Length = 1
pocket6.Reversed = True

# Sketch on YZ plane
sketch17 = doc.addObject("Sketcher::SketchObject", "Sketch016")
body.addObject(sketch17)
sketch17.AttachmentSupport = (doc.YZ_Plane, [""])
sketch17.MapMode = "FlatFace"
sketch17.AttachmentOffset = App.Placement(App.Vector(0, 0, 20.7893), App.Rotation())
add_polygon(sketch17, [(8, 32.7), (32, 32.7), (32, 44.2), (7, 44.2), (7, 43.2), (8, 43.2)])  # lines 0-5
add_polygon(sketch17, [(32, 25.7), (8, 25.7), (8, 9.2), (32, 9.2)])  # lines 6-9
sketch17.addConstraint(Sketcher.Constraint("Horizontal", 0))
sketch17.addConstraint(Sketcher.Constraint("Vertical", 1))
sketch17.addConstraint(Sketcher.Constraint("Horizontal", 2))
sketch17.addConstraint(Sketcher.Constraint("Vertical", 3))
sketch17.addConstraint(Sketcher.Constraint("Horizontal", 4))
sketch17.addConstraint(Sketcher.Constraint("Vertical", 5))
sketch17.addConstraint(Sketcher.Constraint("Horizontal", 6))
sketch17.addConstraint(Sketcher.Constraint("Vertical", 7))
sketch17.addConstraint(Sketcher.Constraint("Horizontal", 8))
sketch17.addConstraint(Sketcher.Constraint("Vertical", 9))
sketch17.addConstraint(Sketcher.Constraint("Vertical", 5, 2, 6, 2))
sketch17.addConstraint(Sketcher.Constraint("Vertical", 1, 2, 8, 2))
sketch17.addConstraint(Sketcher.Constraint("Equal", 4, 3))
sketch17.addConstraint(Sketcher.Constraint("DistanceX", 0, 1, 0, 2, 24.0))
sketch17.addConstraint(Sketcher.Constraint("DistanceX", 2, 2, 2, 1, 25.0))
sketch17.addConstraint(Sketcher.Constraint("DistanceY", 1, 1, 1, 2, 11.5))
sketch17.addConstraint(Sketcher.Constraint("DistanceY", 7, 2, 7, 1, 16.5))
sketch17.addConstraint(Sketcher.Constraint("DistanceX", -1, 1, 0, 2, 32.0))
sketch17.addConstraint(Sketcher.Constraint("DistanceY", 6, 2, 5, 2, 7.0))
sketch17.addConstraint(Sketcher.Constraint("DistanceY", -1, 1, 0, 2, 32.6553))
pad10 = doc.addObject("PartDesign::Pad", "Pad009")
body.addObject(pad10)
pad10.Profile = sketch17
pad10.Length = 1

# Sketch on YZ plane
sketch18 = doc.addObject("Sketcher::SketchObject", "Sketch017")
body.addObject(sketch18)
sketch18.AttachmentSupport = (doc.YZ_Plane, [""])
sketch18.MapMode = "FlatFace"
sketch18.AttachmentOffset = App.Placement(App.Vector(0, 0, -9.6907), App.Rotation())
add_polygon(sketch18, [(7, 26), (32, 26), (32, 9), (7, 9)])  # lines 0-3
add_polygon(sketch18, [(32, 33), (7, 33), (7, 44), (32, 44)])  # lines 4-7
sketch18.addConstraint(Sketcher.Constraint("Horizontal", 0))
sketch18.addConstraint(Sketcher.Constraint("Vertical", 1))
sketch18.addConstraint(Sketcher.Constraint("Horizontal", 2))
sketch18.addConstraint(Sketcher.Constraint("Vertical", 3))
sketch18.addConstraint(Sketcher.Constraint("Horizontal", 4))
sketch18.addConstraint(Sketcher.Constraint("Vertical", 5))
sketch18.addConstraint(Sketcher.Constraint("Horizontal", 6))
sketch18.addConstraint(Sketcher.Constraint("Vertical", 7))
sketch18.addConstraint(Sketcher.Constraint("Vertical", 3, 2, 4, 2))
sketch18.addConstraint(Sketcher.Constraint("Vertical", 1, 2, 6, 2))
sketch18.addConstraint(Sketcher.Constraint("DistanceX", 0, 1, 0, 2, 25.0))
sketch18.addConstraint(Sketcher.Constraint("DistanceY", 1, 2, 1, 1, 16.5))
sketch18.addConstraint(Sketcher.Constraint("DistanceY", 5, 1, 5, 2, 11.5))
sketch18.addConstraint(Sketcher.Constraint("DistanceX", -1, 1, 0, 2, 32.0))
sketch18.addConstraint(Sketcher.Constraint("DistanceY", 3, 2, 4, 2, 7.0))
sketch18.addConstraint(Sketcher.Constraint("DistanceY", -1, 1, 0, 2, 25.6553))
pad11 = doc.addObject("PartDesign::Pad", "Pad010")
body.addObject(pad11)
pad11.Profile = sketch18
pad11.Length = 1
pad11.Reversed = True

# Sketch on XY plane
sketch19 = doc.addObject("Sketcher::SketchObject", "Sketch018")
body.addObject(sketch19)
sketch19.AttachmentSupport = (doc.XY_Plane, [""])
sketch19.MapMode = "FlatFace"
sketch19.AttachmentOffset = App.Placement(App.Vector(0, 0, 44.1553), App.Rotation())
add_polygon(sketch19, [(22, 7), (22, 32), (-11, 32), (-11, 7)])  # lines 0-3
sketch19.addConstraint(Sketcher.Constraint("Vertical", 0))
sketch19.addConstraint(Sketcher.Constraint("Horizontal", 1))
sketch19.addConstraint(Sketcher.Constraint("Vertical", 2))
sketch19.addConstraint(Sketcher.Constraint("Horizontal", 3))
sketch19.addConstraint(Sketcher.Constraint("DistanceY", 0, 1, 0, 2, 25.0))
sketch19.addConstraint(Sketcher.Constraint("DistanceY", -1, 1, 0, 2, 32.0))
sketch19.addConstraint(Sketcher.Constraint("DistanceX", 1, 2, 1, 1, 32.48))
sketch19.addConstraint(Sketcher.Constraint("DistanceX", -1, 1, 0, 2, 21.7893))
pad12 = doc.addObject("PartDesign::Pad", "Pad011")
body.addObject(pad12)
pad12.Profile = sketch19
pad12.Length = 1

# Sketch on XZ plane
sketch20 = doc.addObject("Sketcher::SketchObject", "Sketch019")
body.addObject(sketch20)
sketch20.AttachmentSupport = (doc.XZ_Plane, [""])
sketch20.MapMode = "FlatFace"
add_polygon(sketch20, [(-16, -6), (-16, -16), (-11, -16), (-11, -6)])  # lines 0-3
sketch20.addConstraint(Sketcher.Constraint("Vertical", 0))
sketch20.addConstraint(Sketcher.Constraint("Horizontal", 1))
sketch20.addConstraint(Sketcher.Constraint("Vertical", 2))
sketch20.addConstraint(Sketcher.Constraint("Horizontal", 3))
sketch20.addConstraint(Sketcher.Constraint("DistanceX", 1, 1, 1, 2, 5.0))
sketch20.addConstraint(Sketcher.Constraint("DistanceY", 0, 2, 0, 1, 10.0))
sketch20.addConstraint(Sketcher.Constraint("DistanceX", 0, 2, -1, 1, 16.2107))
sketch20.addConstraint(Sketcher.Constraint("DistanceY", 0, 2, -1, 1, 15.8447))
pad13 = doc.addObject("PartDesign::Pad", "Pad012")
body.addObject(pad13)
pad13.Profile = sketch20
pad13.Length = 12.7

# Sketch on YZ plane
sketch21 = doc.addObject("Sketcher::SketchObject", "Sketch020")
body.addObject(sketch21)
sketch21.AttachmentSupport = (doc.YZ_Plane, [""])
sketch21.MapMode = "FlatFace"
sketch21.AttachmentOffset = App.Placement(App.Vector(0, 0, -16.2107), App.Rotation())
add_polygon(sketch21, [(-12.7, -15.8), (-12.7, -5.8), (-7.7, -5.8), (-7.7, -15.8)])  # lines 0-3
sketch21.addConstraint(Sketcher.Constraint("Vertical", 0))
sketch21.addConstraint(Sketcher.Constraint("Horizontal", 1))
sketch21.addConstraint(Sketcher.Constraint("Vertical", 2))
sketch21.addConstraint(Sketcher.Constraint("Horizontal", 3))
sketch21.addConstraint(Sketcher.Constraint("DistanceX", 1, 1, 1, 2, 5.0))
sketch21.addConstraint(Sketcher.Constraint("DistanceY", 0, 1, 0, 2, 10.0))
sketch21.addConstraint(Sketcher.Constraint("DistanceX", 0, 2, -1, 1, 12.7))
sketch21.addConstraint(Sketcher.Constraint("DistanceY", 0, 2, -1, 1, 5.8447))
pad14 = doc.addObject("PartDesign::Pad", "Pad013")
body.addObject(pad14)
pad14.Profile = sketch21
pad14.Length = 35
pad14.Reversed = True

# Sketch on XZ plane
sketch22 = doc.addObject("Sketcher::SketchObject", "Sketch021")
body.addObject(sketch22)
sketch22.AttachmentSupport = (doc.XZ_Plane, [""])
sketch22.MapMode = "FlatFace"
sketch22.AttachmentOffset = App.Placement(App.Vector(0, 0, -42), App.Rotation())
add_polygon(sketch22, [(-11, -16), (-16, -16), (-16, -6), (-11, -6)])  # lines 0-3
sketch22.addConstraint(Sketcher.Constraint("Horizontal", 0))
sketch22.addConstraint(Sketcher.Constraint("Vertical", 1))
sketch22.addConstraint(Sketcher.Constraint("Horizontal", 2))
sketch22.addConstraint(Sketcher.Constraint("Vertical", 3))
sketch22.addConstraint(Sketcher.Constraint("DistanceX", 0, 2, 0, 1, 5.0))
sketch22.addConstraint(Sketcher.Constraint("DistanceY", 1, 1, 1, 2, 10.0))
sketch22.addConstraint(Sketcher.Constraint("DistanceX", 0, 2, -1, 1, 16.2107))
sketch22.addConstraint(Sketcher.Constraint("DistanceY", 0, 2, -1, 1, 15.8447))
pad15 = doc.addObject("PartDesign::Pad", "Pad014")
body.addObject(pad15)
pad15.Profile = sketch22
pad15.Length = 154.9042
pad15.Reversed = True

# Sketch on YZ plane
sketch23 = doc.addObject("Sketcher::SketchObject", "Sketch022")
body.addObject(sketch23)
sketch23.AttachmentSupport = (doc.YZ_Plane, [""])
sketch23.MapMode = "FlatFace"
sketch23.AttachmentOffset = App.Placement(App.Vector(0, 0, -16.2107), App.Rotation())
add_polygon(sketch23, [(197, -6), (197, -16), (192, -16), (192, -6)])  # lines 0-3
sketch23.addConstraint(Sketcher.Constraint("Vertical", 0))
sketch23.addConstraint(Sketcher.Constraint("Horizontal", 1))
sketch23.addConstraint(Sketcher.Constraint("Vertical", 2))
sketch23.addConstraint(Sketcher.Constraint("Horizontal", 3))
sketch23.addConstraint(Sketcher.Constraint("DistanceX", 1, 2, 1, 1, 5.0))
sketch23.addConstraint(Sketcher.Constraint("DistanceY", 0, 2, 0, 1, 10.0))
sketch23.addConstraint(Sketcher.Constraint("DistanceX", -1, 1, 0, 2, 196.9042))
sketch23.addConstraint(Sketcher.Constraint("DistanceY", 0, 2, -1, 1, 15.8447))
pad16 = doc.addObject("PartDesign::Pad", "Pad015")
body.addObject(pad16)
pad16.Profile = sketch23
pad16.Length = 35
pad16.Reversed = True

# Sketch on YZ plane
sketch24 = doc.addObject("Sketcher::SketchObject", "Sketch023")
body.addObject(sketch24)
sketch24.AttachmentSupport = (doc.YZ_Plane, [""])
sketch24.MapMode = "FlatFace"
sketch24.AttachmentOffset = App.Placement(App.Vector(0, 0, 21.7893), App.Rotation())
add_polygon(sketch24, [(7, 25.7), (8, 25.7), (8, 32.7), (7, 32.7)])  # lines 0-3
sketch24.addConstraint(Sketcher.Constraint("Horizontal", 0))
sketch24.addConstraint(Sketcher.Constraint("Vertical", 1))
sketch24.addConstraint(Sketcher.Constraint("Horizontal", 2))
sketch24.addConstraint(Sketcher.Constraint("Vertical", 3))
sketch24.addConstraint(Sketcher.Constraint("DistanceX", 0, 1, 0, 2, 1.0))
sketch24.addConstraint(Sketcher.Constraint("DistanceY", 1, 1, 1, 2, 7.0))
sketch24.addConstraint(Sketcher.Constraint("DistanceX", -1, 1, 0, 2, 8.0))
sketch24.addConstraint(Sketcher.Constraint("DistanceY", -1, 1, 0, 2, 25.6553))
pocket7 = doc.addObject("PartDesign::Pocket", "Pocket006")
body.addObject(pocket7)
pocket7.Profile = sketch24
pocket7.Length = 1

# Sketch on XY plane
sketch25 = doc.addObject("Sketcher::SketchObject", "Sketch024")
body.addObject(sketch25)
sketch25.AttachmentSupport = (doc.XY_Plane, [""])
sketch25.MapMode = "FlatFace"
sketch25.AttachmentOffset = App.Placement(App.Vector(0, 0, -29.8447), App.Rotation())
add_polygon(sketch25, [(22.8, 26), (22.8, 25), (14.3, 25), (14.3, 19.5), (10.8, 19.5), (10.8, 24.5), (12.8, 24.5), (12.8, 26)])  # lines 0-7
sketch25.addConstraint(Sketcher.Constraint("Vertical", 0))
sketch25.addConstraint(Sketcher.Constraint("Horizontal", 1))
sketch25.addConstraint(Sketcher.Constraint("Vertical", 2))
sketch25.addConstraint(Sketcher.Constraint("Horizontal", 3))
sketch25.addConstraint(Sketcher.Constraint("Vertical", 4))
sketch25.addConstraint(Sketcher.Constraint("Horizontal", 5))
sketch25.addConstraint(Sketcher.Constraint("Vertical", 6))
sketch25.addConstraint(Sketcher.Constraint("Horizontal", 7))
sketch25.addConstraint(Sketcher.Constraint("DistanceX", 5, 1, 5, 2, 2.0))
sketch25.addConstraint(Sketcher.Constraint("DistanceX", 7, 1, 7, 2, 10.0))
sketch25.addConstraint(Sketcher.Constraint("DistanceY", 4, 1, 4, 2, 5.0))
sketch25.addConstraint(Sketcher.Constraint("DistanceX", 3, 2, 3, 1, 3.5))
sketch25.addConstraint(Sketcher.Constraint("DistanceY", 2, 2, 2, 1, 5.5))
sketch25.addConstraint(Sketcher.Constraint("DistanceY", 6, 1, 6, 2, 1.5))
sketch25.addConstraint(Sketcher.Constraint("DistanceY", -1, 1, 0, 2, 25.0))
sketch25.addConstraint(Sketcher.Constraint("DistanceX", -1, 1, 0, 2, 22.7893))
pocket8 = doc.addObject("PartDesign::Pocket", "Pocket007")
body.addObject(pocket8)
pocket8.Profile = sketch25
pocket8.Length = 10
pocket8.Reversed = True

doc.recompute()
